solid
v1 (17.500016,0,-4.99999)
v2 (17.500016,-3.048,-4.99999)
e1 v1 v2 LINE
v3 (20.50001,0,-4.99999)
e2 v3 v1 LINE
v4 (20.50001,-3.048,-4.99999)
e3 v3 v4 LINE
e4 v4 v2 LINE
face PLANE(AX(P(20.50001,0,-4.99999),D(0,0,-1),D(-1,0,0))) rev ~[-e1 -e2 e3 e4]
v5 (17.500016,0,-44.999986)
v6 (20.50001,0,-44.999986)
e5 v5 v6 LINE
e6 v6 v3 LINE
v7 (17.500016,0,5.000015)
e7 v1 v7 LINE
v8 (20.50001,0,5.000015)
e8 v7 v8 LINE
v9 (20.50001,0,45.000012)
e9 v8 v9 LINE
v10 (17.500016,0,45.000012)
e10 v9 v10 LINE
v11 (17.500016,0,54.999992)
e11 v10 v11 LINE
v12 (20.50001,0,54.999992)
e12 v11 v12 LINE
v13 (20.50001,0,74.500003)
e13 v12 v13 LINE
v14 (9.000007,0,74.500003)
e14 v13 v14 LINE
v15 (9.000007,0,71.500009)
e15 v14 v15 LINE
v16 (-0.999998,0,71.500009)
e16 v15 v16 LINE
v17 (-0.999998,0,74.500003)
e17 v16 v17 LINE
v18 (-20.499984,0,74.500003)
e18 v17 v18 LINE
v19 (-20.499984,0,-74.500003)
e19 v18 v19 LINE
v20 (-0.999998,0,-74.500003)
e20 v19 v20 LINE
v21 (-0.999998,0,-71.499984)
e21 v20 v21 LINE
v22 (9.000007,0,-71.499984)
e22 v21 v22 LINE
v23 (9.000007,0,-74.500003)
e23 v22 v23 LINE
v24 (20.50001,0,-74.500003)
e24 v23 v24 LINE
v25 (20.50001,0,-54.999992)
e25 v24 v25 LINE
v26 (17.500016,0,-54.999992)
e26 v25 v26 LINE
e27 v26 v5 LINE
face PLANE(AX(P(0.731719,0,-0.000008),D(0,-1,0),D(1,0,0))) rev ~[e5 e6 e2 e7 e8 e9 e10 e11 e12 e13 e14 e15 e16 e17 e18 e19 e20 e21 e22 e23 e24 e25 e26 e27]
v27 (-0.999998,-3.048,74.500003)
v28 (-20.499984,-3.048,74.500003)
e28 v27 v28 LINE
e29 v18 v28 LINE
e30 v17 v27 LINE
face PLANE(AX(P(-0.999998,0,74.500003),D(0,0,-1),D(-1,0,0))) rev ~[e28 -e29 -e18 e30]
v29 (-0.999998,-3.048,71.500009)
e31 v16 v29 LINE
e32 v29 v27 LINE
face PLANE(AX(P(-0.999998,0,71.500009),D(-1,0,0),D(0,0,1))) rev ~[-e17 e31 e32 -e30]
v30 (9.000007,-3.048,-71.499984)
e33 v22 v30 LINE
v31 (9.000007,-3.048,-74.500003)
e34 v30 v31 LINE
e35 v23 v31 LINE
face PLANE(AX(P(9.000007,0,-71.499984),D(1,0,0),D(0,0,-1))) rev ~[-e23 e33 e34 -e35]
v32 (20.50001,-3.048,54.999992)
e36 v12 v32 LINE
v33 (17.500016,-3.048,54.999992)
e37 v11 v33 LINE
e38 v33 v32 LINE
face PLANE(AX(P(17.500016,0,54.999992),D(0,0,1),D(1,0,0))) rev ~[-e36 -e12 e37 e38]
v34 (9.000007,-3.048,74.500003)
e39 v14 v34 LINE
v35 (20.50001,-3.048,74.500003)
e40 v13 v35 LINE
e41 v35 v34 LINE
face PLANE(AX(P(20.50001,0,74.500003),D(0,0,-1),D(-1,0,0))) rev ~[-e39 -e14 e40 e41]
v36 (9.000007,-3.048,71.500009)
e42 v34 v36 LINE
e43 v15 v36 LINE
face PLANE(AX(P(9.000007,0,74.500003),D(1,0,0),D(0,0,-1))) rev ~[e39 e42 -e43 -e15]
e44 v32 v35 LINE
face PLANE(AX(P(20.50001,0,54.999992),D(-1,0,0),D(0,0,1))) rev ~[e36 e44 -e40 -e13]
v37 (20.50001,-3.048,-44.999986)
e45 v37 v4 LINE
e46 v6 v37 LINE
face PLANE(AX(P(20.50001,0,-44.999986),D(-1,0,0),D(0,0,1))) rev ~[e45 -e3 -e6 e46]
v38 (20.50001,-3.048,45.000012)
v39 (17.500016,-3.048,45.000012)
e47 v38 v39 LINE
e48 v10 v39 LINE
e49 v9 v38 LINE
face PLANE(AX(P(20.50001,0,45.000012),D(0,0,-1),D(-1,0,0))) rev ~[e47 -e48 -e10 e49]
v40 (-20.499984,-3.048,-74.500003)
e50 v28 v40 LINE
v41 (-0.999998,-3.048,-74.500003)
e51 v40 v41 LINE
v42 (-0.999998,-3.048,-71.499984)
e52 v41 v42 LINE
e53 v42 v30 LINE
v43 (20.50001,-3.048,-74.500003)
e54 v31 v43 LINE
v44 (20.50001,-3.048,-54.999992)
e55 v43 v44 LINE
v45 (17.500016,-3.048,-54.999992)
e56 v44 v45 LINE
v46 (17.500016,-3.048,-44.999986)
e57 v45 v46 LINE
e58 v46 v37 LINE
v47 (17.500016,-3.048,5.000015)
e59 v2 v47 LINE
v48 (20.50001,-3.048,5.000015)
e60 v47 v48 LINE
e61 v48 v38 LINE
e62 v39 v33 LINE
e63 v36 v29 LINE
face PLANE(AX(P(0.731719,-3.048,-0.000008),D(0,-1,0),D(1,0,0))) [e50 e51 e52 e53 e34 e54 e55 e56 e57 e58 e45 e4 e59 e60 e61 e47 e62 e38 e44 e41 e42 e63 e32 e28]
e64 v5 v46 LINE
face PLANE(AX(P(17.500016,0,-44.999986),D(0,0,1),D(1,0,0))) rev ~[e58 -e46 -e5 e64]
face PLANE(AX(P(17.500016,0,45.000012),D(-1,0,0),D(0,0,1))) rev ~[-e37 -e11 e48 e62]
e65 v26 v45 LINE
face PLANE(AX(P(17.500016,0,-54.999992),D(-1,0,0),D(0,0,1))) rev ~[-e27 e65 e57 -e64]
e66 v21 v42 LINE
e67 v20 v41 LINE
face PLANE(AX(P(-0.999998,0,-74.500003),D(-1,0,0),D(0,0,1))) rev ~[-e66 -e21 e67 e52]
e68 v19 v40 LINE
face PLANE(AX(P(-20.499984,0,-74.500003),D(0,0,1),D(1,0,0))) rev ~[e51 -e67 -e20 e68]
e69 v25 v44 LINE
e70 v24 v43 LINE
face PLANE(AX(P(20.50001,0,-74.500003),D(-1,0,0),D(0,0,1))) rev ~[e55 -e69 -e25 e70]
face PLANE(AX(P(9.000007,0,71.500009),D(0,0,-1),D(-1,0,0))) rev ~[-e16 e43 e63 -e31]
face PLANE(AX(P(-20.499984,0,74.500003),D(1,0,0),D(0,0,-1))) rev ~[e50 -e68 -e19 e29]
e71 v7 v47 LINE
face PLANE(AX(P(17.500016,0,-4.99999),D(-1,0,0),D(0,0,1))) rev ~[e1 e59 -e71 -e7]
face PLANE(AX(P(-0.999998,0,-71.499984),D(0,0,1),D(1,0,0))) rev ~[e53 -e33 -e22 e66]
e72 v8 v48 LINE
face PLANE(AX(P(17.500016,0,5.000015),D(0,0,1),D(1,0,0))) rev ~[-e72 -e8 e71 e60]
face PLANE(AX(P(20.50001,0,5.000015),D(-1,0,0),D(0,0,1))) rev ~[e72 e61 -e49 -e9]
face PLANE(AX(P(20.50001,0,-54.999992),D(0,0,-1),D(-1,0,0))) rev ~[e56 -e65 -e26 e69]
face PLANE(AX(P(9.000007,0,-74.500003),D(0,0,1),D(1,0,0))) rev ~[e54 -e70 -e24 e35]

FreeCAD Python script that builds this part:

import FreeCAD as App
import Part
import Sketcher
Q = App.Units.Quantity


def add_polygon(sketch, points):
    """Adds a closed chain of lines whose ends are joined by coincident constraints."""
    first, n = sketch.GeometryCount, len(points)
    for a, b in zip(points, points[1:] + points[:1]):
        sketch.addGeometry(Part.LineSegment(App.Vector(*a, 0), App.Vector(*b, 0)), False)
    for i in range(n):
        sketch.addConstraint(Sketcher.Constraint("Coincident", first + i, 2, first + (i + 1) % n, 1))

doc = App.newDocument("Part")
body = doc.addObject("PartDesign::Body", "Body")

# Sketch on XZ plane
sketch1 = body.newObject("Sketcher::SketchObject", "Sketch")
sketch1.AttachmentSupport = (doc.getObject("XZ_Plane"), [""])
sketch1.MapMode = "FlatFace"
add_polygon(sketch1, [(9.000007, -71.499984), (9.000007, -74.500003), (20.50001, -74.500003), (20.50001, -54.999992), (17.500016, -54.999992), (17.500016, -44.999986), (20.50001, -44.999986), (20.50001, -4.99999), (17.500016, -4.99999), (17.500016, 5.000015), (20.50001, 5.000015), (20.50001, 45.000012), (17.500016, 45.000012), (17.500016, 54.999992), (20.50001, 54.999992), (20.50001, 74.500003), (9.000007, 74.500003), (9.000007, 71.500009), (-0.999998, 71.500009), (-0.999998, 74.500003), (-20.499984, 74.500003), (-20.499984, -74.500003), (-0.999998, -74.500003), (-0.999998, -71.499984)])  # lines 0-23
sketch1.addConstraint(Sketcher.Constraint("Vertical", 0))
sketch1.addConstraint(Sketcher.Constraint("Horizontal", 1))
sketch1.addConstraint(Sketcher.Constraint("Vertical", 2))
sketch1.addConstraint(Sketcher.Constraint("Horizontal", 3))
sketch1.addConstraint(Sketcher.Constraint("Vertical", 4))
sketch1.addConstraint(Sketcher.Constraint("Horizontal", 5))
sketch1.addConstraint(Sketcher.Constraint("Vertical", 6))
sketch1.addConstraint(Sketcher.Constraint("Horizontal", 7))
sketch1.addConstraint(Sketcher.Constraint("Vertical", 8))
sketch1.addConstraint(Sketcher.Constraint("Horizontal", 9))
sketch1.addConstraint(Sketcher.Constraint("Vertical", 10))
sketch1.addConstraint(Sketcher.Constraint("Horizontal", 11))
sketch1.addConstraint(Sketcher.Constraint("Vertical", 12))
sketch1.addConstraint(Sketcher.Constraint("Horizontal", 13))
sketch1.addConstraint(Sketcher.Constraint("Vertical", 14))
sketch1.addConstraint(Sketcher.Constraint("Horizontal", 15))
sketch1.addConstraint(Sketcher.Constraint("Vertical", 16))
sketch1.addConstraint(Sketcher.Constraint("Horizontal", 17))
sketch1.addConstraint(Sketcher.Constraint("Vertical", 18))
sketch1.addConstraint(Sketcher.Constraint("Horizontal", 19))
sketch1.addConstraint(Sketcher.Constraint("Vertical", 20))
sketch1.addConstraint(Sketcher.Constraint("Horizontal", 21))
sketch1.addConstraint(Sketcher.Constraint("Vertical", 22))
sketch1.addConstraint(Sketcher.Constraint("Horizontal", 23))
sketch1.addConstraint(Sketcher.Constraint("Symmetric", 3, 2, 12, 2, -1))
sketch1.addConstraint(Sketcher.Constraint("Symmetric", 1, 2, 14, 2, -1))
sketch1.addConstraint(Sketcher.Constraint("Symmetric", 18, 2, 21, 2, -1))
sketch1.addConstraint(Sketcher.Constraint("Horizontal", 15, 2, 18, 2))
sketch1.addConstraint(Sketcher.Constraint("Vertical", 2, 2, 5, 2))
sketch1.addConstraint(Sketcher.Constraint("Vertical", 4, 2, 7, 2))
sketch1.addConstraint(Sketcher.Constraint("Vertical", 6, 2, 9, 2))
sketch1.addConstraint(Sketcher.Constraint("Vertical", 0, 2, 15, 2))
sketch1.addConstraint(Sketcher.Constraint("Equal", 23, 4))
sketch1.addConstraint(Sketcher.Constraint("Equal", 4, 8))
sketch1.addConstraint(Sketcher.Constraint("Equal", 6, 10))
sketch1.addConstraint(Sketcher.Constraint("Equal", 13, 16))
sketch1.addConstraint(Sketcher.Constraint("DistanceY", 12, 1, 12, 2, Q("0.3937 in")))
sketch1.addConstraint(Sketcher.Constraint("DistanceY", 0, 2, 0, 1, Q("3.000019 mm")))
sketch1.addConstraint(Sketcher.Constraint("DistanceY", 2, 1, 2, 2, Q("19.500011 mm")))
sketch1.addConstraint(Sketcher.Constraint("DistanceX", 17, 2, -1, 1, Q("0.999998 mm")))
sketch1.addConstraint(Sketcher.Constraint("DistanceY", 2, 2, 6, 2, Q("50.000002 mm")))
sketch1.addConstraint(Sketcher.Constraint("DistanceY", 5, 2, 10, 2, Q("89.999998 mm")))
sketch1.addConstraint(Sketcher.Constraint("DistanceX", 20, 2, 3, 2, Q("38 mm")))
sketch1.addConstraint(Sketcher.Constraint("DistanceX", 1, 1, 1, 2, Q("11.500003 mm")))
sketch1.addConstraint(Sketcher.Constraint("DistanceX", 3, 2, 3, 1, Q("2.999994 mm")))
pad1 = body.newObject("PartDesign::Pad", "Pad")
pad1.Profile = sketch1
pad1.Length = Q("0.12 in")

doc.recompute()
